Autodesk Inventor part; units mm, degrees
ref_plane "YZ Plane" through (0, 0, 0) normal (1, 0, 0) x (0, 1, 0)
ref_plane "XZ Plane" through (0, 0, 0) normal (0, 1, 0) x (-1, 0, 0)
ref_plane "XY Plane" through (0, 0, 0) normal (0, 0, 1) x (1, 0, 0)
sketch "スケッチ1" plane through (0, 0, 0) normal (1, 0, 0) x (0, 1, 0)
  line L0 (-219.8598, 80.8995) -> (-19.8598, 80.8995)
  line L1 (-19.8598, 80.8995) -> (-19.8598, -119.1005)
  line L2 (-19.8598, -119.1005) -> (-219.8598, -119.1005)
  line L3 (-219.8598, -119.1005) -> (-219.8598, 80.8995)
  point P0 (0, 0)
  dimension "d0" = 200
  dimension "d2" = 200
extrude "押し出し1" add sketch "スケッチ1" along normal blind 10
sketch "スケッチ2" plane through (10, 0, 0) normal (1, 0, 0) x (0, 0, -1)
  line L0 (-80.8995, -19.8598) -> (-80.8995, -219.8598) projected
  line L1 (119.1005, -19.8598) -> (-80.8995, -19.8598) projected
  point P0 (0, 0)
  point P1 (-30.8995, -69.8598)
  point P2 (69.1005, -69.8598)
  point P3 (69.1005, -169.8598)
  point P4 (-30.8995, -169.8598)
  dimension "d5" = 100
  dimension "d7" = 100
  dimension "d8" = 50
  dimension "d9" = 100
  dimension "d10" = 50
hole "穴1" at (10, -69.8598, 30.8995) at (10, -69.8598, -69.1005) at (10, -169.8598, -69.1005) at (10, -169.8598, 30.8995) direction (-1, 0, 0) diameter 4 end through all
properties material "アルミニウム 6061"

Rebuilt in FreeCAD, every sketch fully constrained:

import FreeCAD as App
import Part
import Sketcher
from FreeCAD import Vector

doc = App.newDocument("Part")
body = doc.addObject("PartDesign::Body", "Body")

sketch1 = body.newObject("Sketcher::SketchObject", "Sketch")
sketch1.AttachmentSupport = (doc.getObject("YZ_Plane"), [""])
sketch1.MapMode = "FlatFace"
sketch1.addGeometry([
    Part.LineSegment(Vector(-20, 81, 0), Vector(-220, 81, 0)),
    Part.LineSegment(Vector(-220, 81, 0), Vector(-220, -119, 0)),
    Part.LineSegment(Vector(-220, -119, 0), Vector(-20, -119, 0)),
    Part.LineSegment(Vector(-20, -119, 0), Vector(-20, 81, 0)),
], False)
sketch1.addConstraint([
    Sketcher.Constraint("Coincident", 0, 2, 1, 1),
    Sketcher.Constraint("Coincident", 1, 2, 2, 1),
    Sketcher.Constraint("Coincident", 2, 2, 3, 1),
    Sketcher.Constraint("Coincident", 3, 2, 0, 1),
    Sketcher.Constraint("Horizontal", 0),
    Sketcher.Constraint("Vertical", 1),
    Sketcher.Constraint("Horizontal", 2),
    Sketcher.Constraint("Vertical", 3),
    Sketcher.Constraint("Equal", 2, 1),
    Sketcher.Constraint("DistanceX", 0, 2, 0, 1, 200.0),
    Sketcher.Constraint("DistanceX", 0, 2, -1, 1, 219.8598),
    Sketcher.Constraint("DistanceY", -1, 1, 0, 2, 80.8995),
])
pad1 = body.newObject("PartDesign::Pad", "Pad")
pad1.Profile = sketch1
pad1.Length = 10

sketch2 = body.newObject("Sketcher::SketchObject", "Sketch001")
sketch2.AttachmentSupport = (doc.getObject("YZ_Plane"), [""])
sketch2.MapMode = "FlatFace"
sketch2.AttachmentOffset = App.Placement(Vector(0, 0, 10), App.Rotation())
sketch2.addGeometry([
    Part.Circle(Vector(-69.9, 30.9, 0), Vector(0, 0, 1), 2),
    Part.Circle(Vector(-69.9, -69.1, 0), Vector(0, 0, 1), 2),
    Part.Circle(Vector(-169.9, -69.1, 0), Vector(0, 0, 1), 2),
    Part.Circle(Vector(-169.9, 30.9, 0), Vector(0, 0, 1), 2),
], False)
sketch2.addConstraint([
    Sketcher.Constraint("Equal", 0, 1),
    Sketcher.Constraint("Equal", 1, 2),
    Sketcher.Constraint("Equal", 2, 3),
    Sketcher.Constraint("Horizontal", 1, 3, 2, 3),
    Sketcher.Constraint("Horizontal", 0, 3, 3, 3),
    Sketcher.Constraint("Vertical", 0, 3, 1, 3),
    Sketcher.Constraint("Vertical", 2, 3, 3, 3),
    Sketcher.Constraint("Diameter", 0, 4.0),
    Sketcher.Constraint("DistanceY", 1, 3, 0, 3, 100.0),
    Sketcher.Constraint("DistanceX", 2, 3, 1, 3, 100.0),
    Sketcher.Constraint("DistanceX", 0, 3, -1, 1, 69.8598),
    Sketcher.Constraint("DistanceY", -1, 1, 0, 3, 30.8995),
])
doc.recompute()
hole = body.newObject("PartDesign::Hole", "Hole")
hole.Profile = sketch2
hole.ThreadType = "None"
hole.Diameter = 4
hole.DepthType = "ThroughAll"

doc.recompute()
